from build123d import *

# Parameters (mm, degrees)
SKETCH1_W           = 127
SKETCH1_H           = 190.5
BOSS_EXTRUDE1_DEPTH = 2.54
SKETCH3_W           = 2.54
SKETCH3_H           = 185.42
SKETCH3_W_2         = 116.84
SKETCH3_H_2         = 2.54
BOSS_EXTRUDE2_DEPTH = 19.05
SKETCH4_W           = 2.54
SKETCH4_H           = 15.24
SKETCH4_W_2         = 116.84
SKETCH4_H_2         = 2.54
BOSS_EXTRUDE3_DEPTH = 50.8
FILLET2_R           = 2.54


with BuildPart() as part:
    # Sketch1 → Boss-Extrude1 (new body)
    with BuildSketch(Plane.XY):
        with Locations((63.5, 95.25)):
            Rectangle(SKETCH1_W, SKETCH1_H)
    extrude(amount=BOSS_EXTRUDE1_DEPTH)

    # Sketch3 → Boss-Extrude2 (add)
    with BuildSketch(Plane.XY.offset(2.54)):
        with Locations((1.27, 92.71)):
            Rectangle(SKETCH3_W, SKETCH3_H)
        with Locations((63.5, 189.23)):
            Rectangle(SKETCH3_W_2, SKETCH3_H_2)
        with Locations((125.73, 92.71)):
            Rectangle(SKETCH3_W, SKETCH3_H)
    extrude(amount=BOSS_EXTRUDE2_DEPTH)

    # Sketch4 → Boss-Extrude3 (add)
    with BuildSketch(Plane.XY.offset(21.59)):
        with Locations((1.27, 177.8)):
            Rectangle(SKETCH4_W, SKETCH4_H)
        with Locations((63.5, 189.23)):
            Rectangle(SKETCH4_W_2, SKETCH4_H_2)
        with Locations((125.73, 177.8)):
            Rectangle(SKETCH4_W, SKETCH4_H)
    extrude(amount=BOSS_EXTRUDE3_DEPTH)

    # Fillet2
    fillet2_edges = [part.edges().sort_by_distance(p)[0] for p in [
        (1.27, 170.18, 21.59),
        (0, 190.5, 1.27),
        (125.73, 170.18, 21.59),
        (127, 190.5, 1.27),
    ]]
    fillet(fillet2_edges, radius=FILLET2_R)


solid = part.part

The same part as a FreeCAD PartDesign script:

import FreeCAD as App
import Part
import Sketcher
Q = App.Units.Quantity


def edges_at(feature, points):
    """Names of the edges that pass closest to the given points."""
    edges = feature.Shape.Edges
    near = lambda p: min(range(len(edges)), key=lambda i: edges[i].distToShape(Part.Vertex(*p))[0])
    return sorted({f"Edge{near(p) + 1}" for p in points})

doc = App.newDocument("Part")
body = doc.addObject("PartDesign::Body", "Body")

sketch1 = doc.addObject("Sketcher::SketchObject", "Sketch")
body.addObject(sketch1)
sketch1.AttachmentSupport = (doc.XY_Plane, [""])
sketch1.MapMode = "FlatFace"
sketch1.addGeometry([
    Part.LineSegment(App.Vector(0, 190, 0), App.Vector(0, 0, 0)),
    Part.LineSegment(App.Vector(0, 0, 0), App.Vector(127, 0, 0)),
    Part.LineSegment(App.Vector(127, 0, 0), App.Vector(127, 190, 0)),
    Part.LineSegment(App.Vector(127, 190, 0), App.Vector(0, 190, 0)),
], False)
sketch1.addConstraint([
    Sketcher.Constraint("Coincident", 0, 2, 1, 1),
    Sketcher.Constraint("Coincident", 1, 2, 2, 1),
    Sketcher.Constraint("Coincident", 2, 2, 3, 1),
    Sketcher.Constraint("Coincident", 3, 2, 0, 1),
    Sketcher.Constraint("Vertical", 0),
    Sketcher.Constraint("Horizontal", 1),
    Sketcher.Constraint("Vertical", 2),
    Sketcher.Constraint("Horizontal", 3),
    Sketcher.Constraint("Coincident", 0, 2, -1, 1),
    Sketcher.Constraint("DistanceX", 1, 1, 1, 2, Q("5 in")),
    Sketcher.Constraint("DistanceY", 0, 2, 0, 1, Q("7.5 in")),
])
pad1 = doc.addObject("PartDesign::Pad", "Pad")
body.addObject(pad1)
pad1.Profile = sketch1
pad1.Length = Q("0.1 in")

sketch2 = doc.addObject("Sketcher::SketchObject", "Sketch001")
body.addObject(sketch2)
sketch2.AttachmentSupport = (doc.XY_Plane, [""])
sketch2.MapMode = "FlatFace"
sketch2.AttachmentOffset = App.Placement(App.Vector(0, 0, 0.1 * 25.4), App.Rotation())
sketch2.addGeometry([
    Part.LineSegment(App.Vector(0, 185.4, 0), App.Vector(0, 0, 0)),
    Part.LineSegment(App.Vector(0, 0, 0), App.Vector(2.5, 0, 0)),
    Part.LineSegment(App.Vector(2.5, 0, 0), App.Vector(2.5, 185.4, 0)),
    Part.LineSegment(App.Vector(2.5, 185.4, 0), App.Vector(0, 185.4, 0)),
    Part.LineSegment(App.Vector(5.1, 190.5, 0), App.Vector(5.1, 188, 0)),
    Part.LineSegment(App.Vector(5.1, 188, 0), App.Vector(121.9, 188, 0)),
    Part.LineSegment(App.Vector(121.9, 188, 0), App.Vector(121.9, 190.5, 0)),
    Part.LineSegment(App.Vector(121.9, 190.5, 0), App.Vector(5.1, 190.5, 0)),
    Part.LineSegment(App.Vector(124.5, 185.4, 0), App.Vector(124.5, 0, 0)),
    Part.LineSegment(App.Vector(124.5, 0, 0), App.Vector(127, 0, 0)),
    Part.LineSegment(App.Vector(127, 0, 0), App.Vector(127, 185.4, 0)),
    Part.LineSegment(App.Vector(127, 185.4, 0), App.Vector(124.5, 185.4, 0)),
], False)
sketch2.addConstraint([
    Sketcher.Constraint("Coincident", 0, 2, 1, 1),
    Sketcher.Constraint("Coincident", 1, 2, 2, 1),
    Sketcher.Constraint("Coincident", 2, 2, 3, 1),
    Sketcher.Constraint("Coincident", 3, 2, 0, 1),
    Sketcher.Constraint("Coincident", 4, 2, 5, 1),
    Sketcher.Constraint("Coincident", 5, 2, 6, 1),
    Sketcher.Constraint("Coincident", 6, 2, 7, 1),
    Sketcher.Constraint("Coincident", 7, 2, 4, 1),
    Sketcher.Constraint("Coincident", 8, 2, 9, 1),
    Sketcher.Constraint("Coincident", 9, 2, 10, 1),
    Sketcher.Constraint("Coincident", 10, 2, 11, 1),
    Sketcher.Constraint("Coincident", 11, 2, 8, 1),
    Sketcher.Constraint("Vertical", 0),
    Sketcher.Constraint("Horizontal", 1),
    Sketcher.Constraint("Vertical", 2),
    Sketcher.Constraint("Horizontal", 3),
    Sketcher.Constraint("Vertical", 4),
    Sketcher.Constraint("Horizontal", 5),
    Sketcher.Constraint("Vertical", 6),
    Sketcher.Constraint("Horizontal", 7),
    Sketcher.Constraint("Vertical", 8),
    Sketcher.Constraint("Horizontal", 9),
    Sketcher.Constraint("Vertical", 10),
    Sketcher.Constraint("Horizontal", 11),
    Sketcher.Constraint("Coincident", 0, 2, -1, 1),
    Sketcher.Constraint("PointOnObject", 8, 2, -1),
    Sketcher.Constraint("Horizontal", 3, 2, 10, 2),
    Sketcher.Constraint("Equal", 3, 9),
    Sketcher.Constraint("Equal", 11, 4),
    Sketcher.Constraint("DistanceX", 1, 1, 1, 2, Q("0.1 in")),
    Sketcher.Constraint("DistanceX", 5, 1, 5, 2, Q("4.6 in")),
    Sketcher.Constraint("DistanceY", 0, 2, 0, 1, Q("7.3 in")),
    Sketcher.Constraint("DistanceX", -1, 1, 9, 2, Q("5 in")),
    Sketcher.Constraint("DistanceX", -1, 1, 4, 2, Q("0.2 in")),
    Sketcher.Constraint("DistanceY", -1, 1, 4, 2, Q("7.4 in")),
])
pad2 = doc.addObject("PartDesign::Pad", "Pad001")
body.addObject(pad2)
pad2.Profile = sketch2
pad2.Length = Q("0.75 in")

sketch3 = doc.addObject("Sketcher::SketchObject", "Sketch002")
body.addObject(sketch3)
sketch3.AttachmentSupport = (doc.XY_Plane, [""])
sketch3.MapMode = "FlatFace"
sketch3.AttachmentOffset = App.Placement(App.Vector(0, 0, 0.85 * 25.4), App.Rotation())
sketch3.addGeometry([
    Part.LineSegment(App.Vector(0, 185.4, 0), App.Vector(0, 170.2, 0)),
    Part.LineSegment(App.Vector(0, 170.2, 0), App.Vector(2.5, 170.2, 0)),
    Part.LineSegment(App.Vector(2.5, 170.2, 0), App.Vector(2.5, 185.4, 0)),
    Part.LineSegment(App.Vector(2.5, 185.4, 0), App.Vector(0, 185.4, 0)),
    Part.LineSegment(App.Vector(5.1, 190.5, 0), App.Vector(5.1, 188, 0)),
    Part.LineSegment(App.Vector(5.1, 188, 0), App.Vector(121.9, 188, 0)),
    Part.LineSegment(App.Vector(121.9, 188, 0), App.Vector(121.9, 190.5, 0)),
    Part.LineSegment(App.Vector(121.9, 190.5, 0), App.Vector(5.1, 190.5, 0)),
    Part.LineSegment(App.Vector(124.5, 185.4, 0), App.Vector(124.5, 170.2, 0)),
    Part.LineSegment(App.Vector(124.5, 170.2, 0), App.Vector(127, 170.2, 0)),
    Part.LineSegment(App.Vector(127, 170.2, 0), App.Vector(127, 185.4, 0)),
    Part.LineSegment(App.Vector(127, 185.4, 0), App.Vector(124.5, 185.4, 0)),
], False)
sketch3.addConstraint([
    Sketcher.Constraint("Coincident", 0, 2, 1, 1),
    Sketcher.Constraint("Coincident", 1, 2, 2, 1),
    Sketcher.Constraint("Coincident", 2, 2, 3, 1),
    Sketcher.Constraint("Coincident", 3, 2, 0, 1),
    Sketcher.Constraint("Coincident", 4, 2, 5, 1),
    Sketcher.Constraint("Coincident", 5, 2, 6, 1),
    Sketcher.Constraint("Coincident", 6, 2, 7, 1),
    Sketcher.Constraint("Coincident", 7, 2, 4, 1),
    Sketcher.Constraint("Coincident", 8, 2, 9, 1),
    Sketcher.Constraint("Coincident", 9, 2, 10, 1),
    Sketcher.Constraint("Coincident", 10, 2, 11, 1),
    Sketcher.Constraint("Coincident", 11, 2, 8, 1),
    Sketcher.Constraint("Vertical", 0),
    Sketcher.Constraint("Horizontal", 1),
    Sketcher.Constraint("Vertical", 2),
    Sketcher.Constraint("Horizontal", 3),
    Sketcher.Constraint("Vertical", 4),
    Sketcher.Constraint("Horizontal", 5),
    Sketcher.Constraint("Vertical", 6),
    Sketcher.Constraint("Horizontal", 7),
    Sketcher.Constraint("Vertical", 8),
    Sketcher.Constraint("Horizontal", 9),
    Sketcher.Constraint("Vertical", 10),
    Sketcher.Constraint("Horizontal", 11),
    Sketcher.Constraint("PointOnObject", 0, 2, -2),
    Sketcher.Constraint("Horizontal", 1, 2, 8, 2),
    Sketcher.Constraint("Horizontal", 3, 2, 10, 2),
    Sketcher.Constraint("Equal", 3, 9),
    Sketcher.Constraint("Equal", 11, 4),
    Sketcher.Constraint("DistanceX", 1, 1, 1, 2, Q("0.1 in")),
    Sketcher.Constraint("DistanceX", 5, 1, 5, 2, Q("4.6 in")),
    Sketcher.Constraint("DistanceY", 0, 2, 0, 1, Q("0.6 in")),
    Sketcher.Constraint("DistanceX", -1, 1, 9, 2, Q("5 in")),
    Sketcher.Constraint("DistanceY", -1, 1, 0, 2, Q("6.7 in")),
    Sketcher.Constraint("DistanceX", -1, 1, 4, 2, Q("0.2 in")),
    Sketcher.Constraint("DistanceY", -1, 1, 4, 2, Q("7.4 in")),
])
pad3 = doc.addObject("PartDesign::Pad", "Pad002")
body.addObject(pad3)
pad3.Profile = sketch3
pad3.Length = Q("2 in")
doc.recompute()

fillet = doc.addObject("PartDesign::Fillet", "Fillet")
body.addObject(fillet)
fillet.Base = (pad3, edges_at(pad3, [
    (1.27, 170.18, 21.59),
    (0, 190.5, 1.27),
    (125.73, 170.18, 21.59),
    (127, 190.5, 1.27),
]))
fillet.Radius = Q("0.1 in")

doc.recompute()
